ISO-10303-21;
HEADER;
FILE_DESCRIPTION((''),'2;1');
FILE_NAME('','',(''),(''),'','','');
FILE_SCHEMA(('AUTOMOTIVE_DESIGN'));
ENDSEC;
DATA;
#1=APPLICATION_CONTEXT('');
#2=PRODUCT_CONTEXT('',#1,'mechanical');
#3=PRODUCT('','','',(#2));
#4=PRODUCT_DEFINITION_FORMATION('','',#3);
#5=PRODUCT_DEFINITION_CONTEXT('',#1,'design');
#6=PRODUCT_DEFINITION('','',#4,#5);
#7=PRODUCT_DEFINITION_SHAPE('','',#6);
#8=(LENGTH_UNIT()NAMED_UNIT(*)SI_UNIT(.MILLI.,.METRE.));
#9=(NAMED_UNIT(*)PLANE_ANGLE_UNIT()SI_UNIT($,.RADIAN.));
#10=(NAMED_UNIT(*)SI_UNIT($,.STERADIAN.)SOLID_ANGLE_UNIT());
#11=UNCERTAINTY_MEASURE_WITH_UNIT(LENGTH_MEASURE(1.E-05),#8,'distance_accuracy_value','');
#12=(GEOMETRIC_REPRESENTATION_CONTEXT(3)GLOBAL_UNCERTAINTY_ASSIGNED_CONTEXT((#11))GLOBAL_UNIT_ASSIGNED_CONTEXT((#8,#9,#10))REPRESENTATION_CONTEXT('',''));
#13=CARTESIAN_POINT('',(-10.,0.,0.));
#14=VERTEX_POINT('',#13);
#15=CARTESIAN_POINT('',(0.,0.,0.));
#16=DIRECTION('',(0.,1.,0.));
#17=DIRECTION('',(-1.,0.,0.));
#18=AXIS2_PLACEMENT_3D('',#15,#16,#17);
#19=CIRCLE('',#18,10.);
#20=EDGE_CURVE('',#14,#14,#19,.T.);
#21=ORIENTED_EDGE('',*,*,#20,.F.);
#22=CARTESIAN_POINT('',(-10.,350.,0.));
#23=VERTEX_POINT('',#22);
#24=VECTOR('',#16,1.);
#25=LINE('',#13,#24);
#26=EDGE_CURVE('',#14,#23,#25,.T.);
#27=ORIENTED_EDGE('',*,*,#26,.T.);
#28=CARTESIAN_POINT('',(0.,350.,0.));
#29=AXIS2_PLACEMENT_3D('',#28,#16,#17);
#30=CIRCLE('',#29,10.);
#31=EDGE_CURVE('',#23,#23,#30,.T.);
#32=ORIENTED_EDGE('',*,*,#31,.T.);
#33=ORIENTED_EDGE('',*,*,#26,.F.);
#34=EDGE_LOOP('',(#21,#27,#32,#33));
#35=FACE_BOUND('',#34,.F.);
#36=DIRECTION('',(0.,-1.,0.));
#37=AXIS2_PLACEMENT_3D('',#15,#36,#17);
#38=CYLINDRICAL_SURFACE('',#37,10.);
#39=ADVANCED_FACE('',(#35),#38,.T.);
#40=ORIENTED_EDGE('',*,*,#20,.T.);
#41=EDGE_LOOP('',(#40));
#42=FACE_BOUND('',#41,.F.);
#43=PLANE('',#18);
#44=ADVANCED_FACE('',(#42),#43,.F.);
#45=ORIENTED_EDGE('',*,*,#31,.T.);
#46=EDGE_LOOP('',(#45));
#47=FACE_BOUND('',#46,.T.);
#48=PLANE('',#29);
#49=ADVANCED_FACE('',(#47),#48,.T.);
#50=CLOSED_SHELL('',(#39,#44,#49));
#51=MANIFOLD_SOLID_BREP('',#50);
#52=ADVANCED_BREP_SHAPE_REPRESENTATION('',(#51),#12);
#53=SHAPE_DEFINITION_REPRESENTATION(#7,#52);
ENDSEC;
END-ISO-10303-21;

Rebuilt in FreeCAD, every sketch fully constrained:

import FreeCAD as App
import Part
import Sketcher
from FreeCAD import Vector

doc = App.newDocument("Part")
body = doc.addObject("PartDesign::Body", "Body")

sketch1 = body.newObject("Sketcher::SketchObject", "Sketch")
sketch1.AttachmentSupport = (doc.getObject("XZ_Plane"), [""])
sketch1.MapMode = "FlatFace"
sketch1.addGeometry(Part.Circle(Vector(0, 0, 0), Vector(0, 0, 1), 10), False)
sketch1.addConstraint([
    Sketcher.Constraint("Coincident", 0, 3, -1, 1),
    Sketcher.Constraint("Diameter", 0, 20.0),
])
pad1 = body.newObject("PartDesign::Pad", "Pad")
pad1.Profile = sketch1
pad1.Length = 350
pad1.Reversed = True

doc.recompute()
